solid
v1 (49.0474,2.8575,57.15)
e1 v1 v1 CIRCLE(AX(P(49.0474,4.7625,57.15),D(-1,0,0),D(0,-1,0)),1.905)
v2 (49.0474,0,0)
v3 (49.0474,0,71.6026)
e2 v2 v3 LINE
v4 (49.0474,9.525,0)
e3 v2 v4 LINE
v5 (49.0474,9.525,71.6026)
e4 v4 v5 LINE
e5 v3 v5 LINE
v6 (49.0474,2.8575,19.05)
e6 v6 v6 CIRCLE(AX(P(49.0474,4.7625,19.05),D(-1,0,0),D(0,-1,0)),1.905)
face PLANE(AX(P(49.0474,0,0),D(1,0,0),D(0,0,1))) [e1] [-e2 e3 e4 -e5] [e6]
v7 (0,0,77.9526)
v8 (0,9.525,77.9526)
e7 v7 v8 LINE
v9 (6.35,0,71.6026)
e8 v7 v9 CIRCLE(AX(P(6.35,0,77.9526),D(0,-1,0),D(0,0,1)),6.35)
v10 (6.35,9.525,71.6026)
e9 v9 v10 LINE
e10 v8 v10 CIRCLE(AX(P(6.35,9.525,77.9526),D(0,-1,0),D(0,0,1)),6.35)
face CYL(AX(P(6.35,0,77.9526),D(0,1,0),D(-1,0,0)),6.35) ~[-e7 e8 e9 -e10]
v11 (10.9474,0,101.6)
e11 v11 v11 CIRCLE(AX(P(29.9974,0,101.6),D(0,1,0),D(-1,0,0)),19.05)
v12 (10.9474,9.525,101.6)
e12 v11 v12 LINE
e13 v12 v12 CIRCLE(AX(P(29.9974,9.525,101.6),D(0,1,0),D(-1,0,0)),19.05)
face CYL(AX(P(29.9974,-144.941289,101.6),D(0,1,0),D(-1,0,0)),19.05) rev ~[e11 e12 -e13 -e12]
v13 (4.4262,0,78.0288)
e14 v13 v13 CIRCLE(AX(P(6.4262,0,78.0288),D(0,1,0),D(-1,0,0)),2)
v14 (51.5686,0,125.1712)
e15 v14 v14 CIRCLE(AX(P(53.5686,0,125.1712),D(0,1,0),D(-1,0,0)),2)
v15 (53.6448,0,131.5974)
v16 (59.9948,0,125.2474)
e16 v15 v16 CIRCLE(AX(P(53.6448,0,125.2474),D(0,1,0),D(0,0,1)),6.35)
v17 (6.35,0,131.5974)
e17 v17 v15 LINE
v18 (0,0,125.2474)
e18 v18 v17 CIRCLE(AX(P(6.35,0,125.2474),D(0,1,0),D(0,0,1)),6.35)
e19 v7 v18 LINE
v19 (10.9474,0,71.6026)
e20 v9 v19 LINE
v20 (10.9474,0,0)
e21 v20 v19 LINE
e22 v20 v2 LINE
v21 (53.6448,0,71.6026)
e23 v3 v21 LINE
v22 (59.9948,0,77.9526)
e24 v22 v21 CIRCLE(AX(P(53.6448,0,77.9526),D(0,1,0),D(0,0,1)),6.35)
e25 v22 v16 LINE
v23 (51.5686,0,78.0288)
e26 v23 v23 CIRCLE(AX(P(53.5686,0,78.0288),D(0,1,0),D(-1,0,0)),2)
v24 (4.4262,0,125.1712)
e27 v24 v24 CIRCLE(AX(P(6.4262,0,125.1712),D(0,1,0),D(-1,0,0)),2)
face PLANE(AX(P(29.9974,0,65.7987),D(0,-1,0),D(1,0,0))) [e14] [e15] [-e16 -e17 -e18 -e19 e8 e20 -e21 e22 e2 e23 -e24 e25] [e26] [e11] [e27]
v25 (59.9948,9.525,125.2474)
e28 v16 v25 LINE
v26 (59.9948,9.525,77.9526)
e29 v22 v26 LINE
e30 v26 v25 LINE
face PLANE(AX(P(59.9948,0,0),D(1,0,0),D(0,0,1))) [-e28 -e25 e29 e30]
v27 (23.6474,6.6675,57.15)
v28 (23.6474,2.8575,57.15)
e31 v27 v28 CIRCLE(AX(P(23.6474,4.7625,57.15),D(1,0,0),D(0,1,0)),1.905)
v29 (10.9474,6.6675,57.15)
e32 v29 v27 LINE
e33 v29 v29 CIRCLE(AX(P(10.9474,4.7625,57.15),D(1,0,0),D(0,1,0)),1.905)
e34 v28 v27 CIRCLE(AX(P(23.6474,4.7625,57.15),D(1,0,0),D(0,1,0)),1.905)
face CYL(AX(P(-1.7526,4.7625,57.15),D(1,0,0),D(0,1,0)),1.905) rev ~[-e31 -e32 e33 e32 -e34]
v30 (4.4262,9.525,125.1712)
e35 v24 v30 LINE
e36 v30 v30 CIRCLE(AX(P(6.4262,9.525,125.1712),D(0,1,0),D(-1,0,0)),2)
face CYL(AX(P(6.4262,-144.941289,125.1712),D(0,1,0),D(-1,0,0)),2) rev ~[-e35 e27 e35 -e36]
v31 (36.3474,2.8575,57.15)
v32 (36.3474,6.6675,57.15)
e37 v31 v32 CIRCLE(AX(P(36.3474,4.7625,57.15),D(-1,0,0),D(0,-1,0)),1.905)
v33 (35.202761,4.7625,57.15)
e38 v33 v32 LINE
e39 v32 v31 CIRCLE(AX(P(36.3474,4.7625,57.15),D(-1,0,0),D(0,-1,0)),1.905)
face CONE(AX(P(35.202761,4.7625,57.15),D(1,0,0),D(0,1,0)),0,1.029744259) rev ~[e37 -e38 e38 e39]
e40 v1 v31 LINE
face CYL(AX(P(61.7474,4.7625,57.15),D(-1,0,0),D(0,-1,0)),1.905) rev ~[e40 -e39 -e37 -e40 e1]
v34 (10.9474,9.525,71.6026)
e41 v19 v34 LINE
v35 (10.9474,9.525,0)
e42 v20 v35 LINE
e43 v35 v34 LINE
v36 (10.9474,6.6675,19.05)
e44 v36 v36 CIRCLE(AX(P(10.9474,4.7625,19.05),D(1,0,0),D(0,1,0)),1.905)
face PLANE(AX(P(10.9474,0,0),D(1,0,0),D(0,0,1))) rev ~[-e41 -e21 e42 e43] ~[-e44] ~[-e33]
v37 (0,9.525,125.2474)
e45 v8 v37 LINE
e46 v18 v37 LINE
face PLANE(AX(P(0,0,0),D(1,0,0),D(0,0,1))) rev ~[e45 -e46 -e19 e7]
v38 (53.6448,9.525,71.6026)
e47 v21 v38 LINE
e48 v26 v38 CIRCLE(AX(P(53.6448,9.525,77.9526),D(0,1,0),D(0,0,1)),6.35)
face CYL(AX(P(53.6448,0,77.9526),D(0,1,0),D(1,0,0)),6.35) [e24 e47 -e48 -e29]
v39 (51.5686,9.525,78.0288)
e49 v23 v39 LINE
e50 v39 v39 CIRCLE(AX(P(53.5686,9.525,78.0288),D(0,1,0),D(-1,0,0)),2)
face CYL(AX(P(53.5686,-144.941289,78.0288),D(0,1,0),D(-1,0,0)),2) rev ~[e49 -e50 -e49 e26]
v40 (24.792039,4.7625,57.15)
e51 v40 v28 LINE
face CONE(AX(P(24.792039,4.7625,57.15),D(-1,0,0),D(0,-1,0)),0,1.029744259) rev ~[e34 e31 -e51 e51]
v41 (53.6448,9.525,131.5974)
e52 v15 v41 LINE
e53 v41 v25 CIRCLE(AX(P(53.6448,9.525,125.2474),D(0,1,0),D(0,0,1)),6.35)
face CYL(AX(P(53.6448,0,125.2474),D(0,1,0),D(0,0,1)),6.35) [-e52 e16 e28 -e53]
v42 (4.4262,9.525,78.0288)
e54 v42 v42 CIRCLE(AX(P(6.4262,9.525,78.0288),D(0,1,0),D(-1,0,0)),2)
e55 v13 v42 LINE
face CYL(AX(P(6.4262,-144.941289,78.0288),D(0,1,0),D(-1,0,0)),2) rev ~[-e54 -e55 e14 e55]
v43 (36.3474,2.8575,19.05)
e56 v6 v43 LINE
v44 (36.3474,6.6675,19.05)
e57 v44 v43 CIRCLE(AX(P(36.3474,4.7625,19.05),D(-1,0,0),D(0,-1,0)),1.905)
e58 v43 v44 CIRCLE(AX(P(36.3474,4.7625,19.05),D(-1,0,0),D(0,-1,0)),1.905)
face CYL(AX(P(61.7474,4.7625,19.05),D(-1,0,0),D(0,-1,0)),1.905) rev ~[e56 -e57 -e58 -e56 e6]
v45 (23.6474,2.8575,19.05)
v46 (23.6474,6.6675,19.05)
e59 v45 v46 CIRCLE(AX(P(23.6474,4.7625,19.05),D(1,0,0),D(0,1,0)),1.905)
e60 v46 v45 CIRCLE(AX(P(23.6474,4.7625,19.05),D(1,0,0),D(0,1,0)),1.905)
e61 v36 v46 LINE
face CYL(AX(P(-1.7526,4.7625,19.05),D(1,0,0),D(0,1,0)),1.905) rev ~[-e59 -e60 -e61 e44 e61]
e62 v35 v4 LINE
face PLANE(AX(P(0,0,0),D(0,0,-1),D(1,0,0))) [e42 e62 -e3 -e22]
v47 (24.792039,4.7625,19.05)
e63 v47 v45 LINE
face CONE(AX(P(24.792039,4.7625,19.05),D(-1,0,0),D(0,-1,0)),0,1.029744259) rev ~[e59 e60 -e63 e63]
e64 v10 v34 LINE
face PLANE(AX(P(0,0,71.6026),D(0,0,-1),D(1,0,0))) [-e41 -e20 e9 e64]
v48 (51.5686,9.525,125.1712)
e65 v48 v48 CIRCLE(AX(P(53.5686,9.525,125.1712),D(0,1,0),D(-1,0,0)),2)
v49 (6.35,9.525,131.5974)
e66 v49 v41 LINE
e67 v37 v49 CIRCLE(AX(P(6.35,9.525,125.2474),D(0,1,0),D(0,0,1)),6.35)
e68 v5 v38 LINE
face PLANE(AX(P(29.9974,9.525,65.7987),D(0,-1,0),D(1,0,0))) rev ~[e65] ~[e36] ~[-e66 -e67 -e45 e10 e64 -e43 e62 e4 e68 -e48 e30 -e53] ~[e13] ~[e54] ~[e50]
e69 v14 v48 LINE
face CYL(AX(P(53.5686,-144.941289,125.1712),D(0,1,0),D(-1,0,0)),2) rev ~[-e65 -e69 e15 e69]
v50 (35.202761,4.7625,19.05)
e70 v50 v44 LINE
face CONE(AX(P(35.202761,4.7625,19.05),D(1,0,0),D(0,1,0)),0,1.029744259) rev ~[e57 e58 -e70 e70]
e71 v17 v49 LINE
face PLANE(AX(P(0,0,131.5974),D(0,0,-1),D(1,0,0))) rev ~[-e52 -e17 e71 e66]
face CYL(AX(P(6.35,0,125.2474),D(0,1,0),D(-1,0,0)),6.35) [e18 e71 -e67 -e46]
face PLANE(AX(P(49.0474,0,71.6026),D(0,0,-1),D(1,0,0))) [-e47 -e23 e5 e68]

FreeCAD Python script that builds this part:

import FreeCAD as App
import Part
import Sketcher

V = App.Vector
Q = App.Units.Quantity


def edges_at(feature, points):
    """Names of the edges that pass closest to the given points."""
    edges = feature.Shape.Edges
    near = lambda p: min(range(len(edges)), key=lambda i: edges[i].distToShape(Part.Vertex(*p))[0])
    return sorted({f"Edge{near(p) + 1}" for p in points})


def add_polygon(sketch, points):
    """Adds a closed chain of lines whose ends are joined by coincident constraints."""
    first, n = sketch.GeometryCount, len(points)
    for a, b in zip(points, points[1:] + points[:1]):
        sketch.addGeometry(Part.LineSegment(App.Vector(*a, 0), App.Vector(*b, 0)), False)
    for i in range(n):
        sketch.addConstraint(Sketcher.Constraint("Coincident", first + i, 2, first + (i + 1) % n, 1))

doc = App.newDocument("Part")
body = doc.addObject("PartDesign::Body", "Body")

# Sketch on XZ plane
sketch1 = body.newObject("Sketcher::SketchObject", "Sketch")
sketch1.AttachmentSupport = (doc.getObject("XZ_Plane"), [""])
sketch1.MapMode = "FlatFace"
add_polygon(sketch1, [(0, 131.5974), (0, 0), (59.9948, 0), (59.9948, 131.5974)])  # lines 0-3
sketch1.addConstraint(Sketcher.Constraint("Vertical", 0))
sketch1.addConstraint(Sketcher.Constraint("Horizontal", 1))
sketch1.addConstraint(Sketcher.Constraint("Vertical", 2))
sketch1.addConstraint(Sketcher.Constraint("Horizontal", 3))
sketch1.addConstraint(Sketcher.Constraint("Coincident", 0, 2, -1, 1))
sketch1.addConstraint(Sketcher.Constraint("DistanceX", 1, 1, 1, 2, Q("2.362 in")))
sketch1.addConstraint(Sketcher.Constraint("DistanceY", 0, 2, 0, 1, Q("5.181 in")))
pad1 = body.newObject("PartDesign::Pad", "Pad")
pad1.Profile = sketch1
pad1.Length = Q("0.375 in")
pad1.Reversed = True

# Sketch on XZ plane
sketch2 = body.newObject("Sketcher::SketchObject", "Sketch001")
sketch2.AttachmentSupport = (doc.getObject("XZ_Plane"), [""])
sketch2.MapMode = "FlatFace"
sketch2.addGeometry(Part.Circle(V(6.4262, 125.1712, 0), V(0, 0, 1), 2), False)
sketch2.addGeometry(Part.Circle(V(6.4262, 78.0288, 0), V(0, 0, 1), 2), False)
sketch2.addGeometry(Part.Circle(V(53.5686, 78.0288, 0), V(0, 0, 1), 2), False)
sketch2.addGeometry(Part.Circle(V(53.5686, 125.1712, 0), V(0, 0, 1), 2), False)
sketch2.addConstraint(Sketcher.Constraint("Equal", 0, 1))
sketch2.addConstraint(Sketcher.Constraint("Equal", 1, 2))
sketch2.addConstraint(Sketcher.Constraint("Equal", 2, 3))
sketch2.addConstraint(Sketcher.Constraint("Horizontal", 1, 3, 2, 3))
sketch2.addConstraint(Sketcher.Constraint("Horizontal", 0, 3, 3, 3))
sketch2.addConstraint(Sketcher.Constraint("Vertical", 0, 3, 1, 3))
sketch2.addConstraint(Sketcher.Constraint("Vertical", 2, 3, 3, 3))
sketch2.addConstraint(Sketcher.Constraint("Diameter", 0, Q("4 mm")))
sketch2.addConstraint(Sketcher.Constraint("DistanceX", -1, 1, 0, 3, Q("0.253 in")))
sketch2.addConstraint(Sketcher.Constraint("DistanceY", -1, 1, 0, 3, Q("4.928 in")))
sketch2.addConstraint(Sketcher.Constraint("DistanceY", -1, 1, 1, 3, Q("3.072 in")))
sketch2.addConstraint(Sketcher.Constraint("DistanceX", -1, 1, 2, 3, Q("2.109 in")))
doc.recompute()
hole = body.newObject("PartDesign::Hole", "Hole")
hole.Profile = sketch2
hole.ThreadType = "None"
hole.Diameter = 4
hole.DepthType = "ThroughAll"

# Sketch on XZ plane
sketch3 = body.newObject("Sketcher::SketchObject", "Sketch002")
sketch3.AttachmentSupport = (doc.getObject("XZ_Plane"), [""])
sketch3.MapMode = "FlatFace"
add_polygon(sketch3, [(0, 71.6026), (0, 0), (10.9474, 0), (10.9474, 71.6026)])  # lines 0-3
add_polygon(sketch3, [(49.0474, 71.6026), (49.0474, 0), (59.9948, 0), (59.9948, 71.6026)])  # lines 4-7
sketch3.addConstraint(Sketcher.Constraint("Vertical", 0))
sketch3.addConstraint(Sketcher.Constraint("Horizontal", 1))
sketch3.addConstraint(Sketcher.Constraint("Vertical", 2))
sketch3.addConstraint(Sketcher.Constraint("Horizontal", 3))
sketch3.addConstraint(Sketcher.Constraint("Vertical", 4))
sketch3.addConstraint(Sketcher.Constraint("Horizontal", 5))
sketch3.addConstraint(Sketcher.Constraint("Vertical", 6))
sketch3.addConstraint(Sketcher.Constraint("Horizontal", 7))
sketch3.addConstraint(Sketcher.Constraint("Coincident", 0, 2, -1, 1))
sketch3.addConstraint(Sketcher.Constraint("PointOnObject", 4, 2, -1))
sketch3.addConstraint(Sketcher.Constraint("Horizontal", 3, 2, 6, 2))
sketch3.addConstraint(Sketcher.Constraint("Equal", 3, 5))
sketch3.addConstraint(Sketcher.Constraint("DistanceX", 1, 2, 4, 2, Q("1.5 in")))
sketch3.addConstraint(Sketcher.Constraint("DistanceX", 1, 1, 1, 2, Q("0.431 in")))
sketch3.addConstraint(Sketcher.Constraint("DistanceY", 0, 2, 0, 1, Q("2.819 in")))
pocket1 = body.newObject("PartDesign::Pocket", "Pocket")
pocket1.Profile = sketch3
pocket1.Type = "ThroughAll"
doc.recompute()

fillet = body.newObject("PartDesign::Fillet", "Fillet")
fillet.Base = (pocket1, edges_at(pocket1, [
    (0, 4.763, 131.597),
    (59.995, 4.763, 131.597),
    (0, 4.763, 71.603),
    (59.995, 4.763, 71.603),
]))
fillet.Radius = Q("0.25 in")

# Sketch on XZ plane
sketch4 = body.newObject("Sketcher::SketchObject", "Sketch003")
sketch4.AttachmentSupport = (doc.getObject("XZ_Plane"), [""])
sketch4.MapMode = "FlatFace"
sketch4.addGeometry(Part.Circle(V(29.9974, 101.6, 0), V(0, 0, 1), 19.05), False)
sketch4.addConstraint(Sketcher.Constraint("Diameter", 0, Q("1.5 in")))
sketch4.addConstraint(Sketcher.Constraint("DistanceY", -1, 1, 0, 3, Q("4 in")))
sketch4.addConstraint(Sketcher.Constraint("DistanceX", -1, 1, 0, 3, Q("1.181 in")))
doc.recompute()
hole2 = body.newObject("PartDesign::Hole", "Hole001")
hole2.Profile = sketch4
hole2.ThreadType = "None"
hole2.Diameter = Q("1.5 in")
hole2.DepthType = "ThroughAll"

# Sketch on YZ plane
sketch5 = body.newObject("Sketcher::SketchObject", "Sketch004")
sketch5.AttachmentSupport = (doc.getObject("YZ_Plane"), [""])
sketch5.MapMode = "FlatFace"
sketch5.AttachmentOffset = App.Placement(V(0, 0, 1.931 * 25.4), App.Rotation())
sketch5.addGeometry(Part.Circle(V(4.7625, 57.15, 0), V(0, 0, 1), 1.905), False)
sketch5.addGeometry(Part.Circle(V(4.7625, 19.05, 0), V(0, 0, 1), 1.905), False)
sketch5.addConstraint(Sketcher.Constraint("Equal", 0, 1))
sketch5.addConstraint(Sketcher.Constraint("Vertical", 0, 3, 1, 3))
sketch5.addConstraint(Sketcher.Constraint("Diameter", 0, Q("0.15 in")))
sketch5.addConstraint(Sketcher.Constraint("DistanceY", 1, 3, 0, 3, Q("1.5 in")))
sketch5.addConstraint(Sketcher.Constraint("DistanceY", -1, 1, 0, 3, Q("2.25 in")))
sketch5.addConstraint(Sketcher.Constraint("DistanceX", -1, 1, 0, 3, Q("0.1875 in")))
doc.recompute()
hole3 = body.newObject("PartDesign::Hole", "Hole002")
hole3.Profile = sketch5
hole3.ThreadType = "None"
hole3.Diameter = Q("0.15 in")
hole3.DepthType = "Dimension"
hole3.Depth = Q("0.5 in")
hole3.DrillPoint = "Angled"
hole3.DrillPointAngle = 118

# Sketch on YZ plane
sketch6 = body.newObject("Sketcher::SketchObject", "Sketch005")
sketch6.AttachmentSupport = (doc.getObject("YZ_Plane"), [""])
sketch6.MapMode = "FlatFace"
sketch6.AttachmentOffset = App.Placement(V(0, 0, 0.431 * 25.4), App.Rotation())
sketch6.addGeometry(Part.Circle(V(4.7625, 57.15, 0), V(0, 0, 1), 1.905), False)
sketch6.addGeometry(Part.Circle(V(4.7625, 19.05, 0), V(0, 0, 1), 1.905), False)
sketch6.addConstraint(Sketcher.Constraint("Equal", 0, 1))
sketch6.addConstraint(Sketcher.Constraint("Vertical", 0, 3, 1, 3))
sketch6.addConstraint(Sketcher.Constraint("Diameter", 0, Q("0.15 in")))
sketch6.addConstraint(Sketcher.Constraint("DistanceY", 1, 3, 0, 3, Q("1.5 in")))
sketch6.addConstraint(Sketcher.Constraint("DistanceY", -1, 1, 0, 3, Q("2.25 in")))
sketch6.addConstraint(Sketcher.Constraint("DistanceX", -1, 1, 0, 3, Q("0.1875 in")))
doc.recompute()
hole4 = body.newObject("PartDesign::Hole", "Hole003")
hole4.Profile = sketch6
hole4.ThreadType = "None"
hole4.Diameter = Q("0.15 in")
hole4.DepthType = "Dimension"
hole4.Depth = Q("0.5 in")
hole4.DrillPoint = "Angled"
hole4.DrillPointAngle = 118
hole4.Reversed = True

doc.recompute()
